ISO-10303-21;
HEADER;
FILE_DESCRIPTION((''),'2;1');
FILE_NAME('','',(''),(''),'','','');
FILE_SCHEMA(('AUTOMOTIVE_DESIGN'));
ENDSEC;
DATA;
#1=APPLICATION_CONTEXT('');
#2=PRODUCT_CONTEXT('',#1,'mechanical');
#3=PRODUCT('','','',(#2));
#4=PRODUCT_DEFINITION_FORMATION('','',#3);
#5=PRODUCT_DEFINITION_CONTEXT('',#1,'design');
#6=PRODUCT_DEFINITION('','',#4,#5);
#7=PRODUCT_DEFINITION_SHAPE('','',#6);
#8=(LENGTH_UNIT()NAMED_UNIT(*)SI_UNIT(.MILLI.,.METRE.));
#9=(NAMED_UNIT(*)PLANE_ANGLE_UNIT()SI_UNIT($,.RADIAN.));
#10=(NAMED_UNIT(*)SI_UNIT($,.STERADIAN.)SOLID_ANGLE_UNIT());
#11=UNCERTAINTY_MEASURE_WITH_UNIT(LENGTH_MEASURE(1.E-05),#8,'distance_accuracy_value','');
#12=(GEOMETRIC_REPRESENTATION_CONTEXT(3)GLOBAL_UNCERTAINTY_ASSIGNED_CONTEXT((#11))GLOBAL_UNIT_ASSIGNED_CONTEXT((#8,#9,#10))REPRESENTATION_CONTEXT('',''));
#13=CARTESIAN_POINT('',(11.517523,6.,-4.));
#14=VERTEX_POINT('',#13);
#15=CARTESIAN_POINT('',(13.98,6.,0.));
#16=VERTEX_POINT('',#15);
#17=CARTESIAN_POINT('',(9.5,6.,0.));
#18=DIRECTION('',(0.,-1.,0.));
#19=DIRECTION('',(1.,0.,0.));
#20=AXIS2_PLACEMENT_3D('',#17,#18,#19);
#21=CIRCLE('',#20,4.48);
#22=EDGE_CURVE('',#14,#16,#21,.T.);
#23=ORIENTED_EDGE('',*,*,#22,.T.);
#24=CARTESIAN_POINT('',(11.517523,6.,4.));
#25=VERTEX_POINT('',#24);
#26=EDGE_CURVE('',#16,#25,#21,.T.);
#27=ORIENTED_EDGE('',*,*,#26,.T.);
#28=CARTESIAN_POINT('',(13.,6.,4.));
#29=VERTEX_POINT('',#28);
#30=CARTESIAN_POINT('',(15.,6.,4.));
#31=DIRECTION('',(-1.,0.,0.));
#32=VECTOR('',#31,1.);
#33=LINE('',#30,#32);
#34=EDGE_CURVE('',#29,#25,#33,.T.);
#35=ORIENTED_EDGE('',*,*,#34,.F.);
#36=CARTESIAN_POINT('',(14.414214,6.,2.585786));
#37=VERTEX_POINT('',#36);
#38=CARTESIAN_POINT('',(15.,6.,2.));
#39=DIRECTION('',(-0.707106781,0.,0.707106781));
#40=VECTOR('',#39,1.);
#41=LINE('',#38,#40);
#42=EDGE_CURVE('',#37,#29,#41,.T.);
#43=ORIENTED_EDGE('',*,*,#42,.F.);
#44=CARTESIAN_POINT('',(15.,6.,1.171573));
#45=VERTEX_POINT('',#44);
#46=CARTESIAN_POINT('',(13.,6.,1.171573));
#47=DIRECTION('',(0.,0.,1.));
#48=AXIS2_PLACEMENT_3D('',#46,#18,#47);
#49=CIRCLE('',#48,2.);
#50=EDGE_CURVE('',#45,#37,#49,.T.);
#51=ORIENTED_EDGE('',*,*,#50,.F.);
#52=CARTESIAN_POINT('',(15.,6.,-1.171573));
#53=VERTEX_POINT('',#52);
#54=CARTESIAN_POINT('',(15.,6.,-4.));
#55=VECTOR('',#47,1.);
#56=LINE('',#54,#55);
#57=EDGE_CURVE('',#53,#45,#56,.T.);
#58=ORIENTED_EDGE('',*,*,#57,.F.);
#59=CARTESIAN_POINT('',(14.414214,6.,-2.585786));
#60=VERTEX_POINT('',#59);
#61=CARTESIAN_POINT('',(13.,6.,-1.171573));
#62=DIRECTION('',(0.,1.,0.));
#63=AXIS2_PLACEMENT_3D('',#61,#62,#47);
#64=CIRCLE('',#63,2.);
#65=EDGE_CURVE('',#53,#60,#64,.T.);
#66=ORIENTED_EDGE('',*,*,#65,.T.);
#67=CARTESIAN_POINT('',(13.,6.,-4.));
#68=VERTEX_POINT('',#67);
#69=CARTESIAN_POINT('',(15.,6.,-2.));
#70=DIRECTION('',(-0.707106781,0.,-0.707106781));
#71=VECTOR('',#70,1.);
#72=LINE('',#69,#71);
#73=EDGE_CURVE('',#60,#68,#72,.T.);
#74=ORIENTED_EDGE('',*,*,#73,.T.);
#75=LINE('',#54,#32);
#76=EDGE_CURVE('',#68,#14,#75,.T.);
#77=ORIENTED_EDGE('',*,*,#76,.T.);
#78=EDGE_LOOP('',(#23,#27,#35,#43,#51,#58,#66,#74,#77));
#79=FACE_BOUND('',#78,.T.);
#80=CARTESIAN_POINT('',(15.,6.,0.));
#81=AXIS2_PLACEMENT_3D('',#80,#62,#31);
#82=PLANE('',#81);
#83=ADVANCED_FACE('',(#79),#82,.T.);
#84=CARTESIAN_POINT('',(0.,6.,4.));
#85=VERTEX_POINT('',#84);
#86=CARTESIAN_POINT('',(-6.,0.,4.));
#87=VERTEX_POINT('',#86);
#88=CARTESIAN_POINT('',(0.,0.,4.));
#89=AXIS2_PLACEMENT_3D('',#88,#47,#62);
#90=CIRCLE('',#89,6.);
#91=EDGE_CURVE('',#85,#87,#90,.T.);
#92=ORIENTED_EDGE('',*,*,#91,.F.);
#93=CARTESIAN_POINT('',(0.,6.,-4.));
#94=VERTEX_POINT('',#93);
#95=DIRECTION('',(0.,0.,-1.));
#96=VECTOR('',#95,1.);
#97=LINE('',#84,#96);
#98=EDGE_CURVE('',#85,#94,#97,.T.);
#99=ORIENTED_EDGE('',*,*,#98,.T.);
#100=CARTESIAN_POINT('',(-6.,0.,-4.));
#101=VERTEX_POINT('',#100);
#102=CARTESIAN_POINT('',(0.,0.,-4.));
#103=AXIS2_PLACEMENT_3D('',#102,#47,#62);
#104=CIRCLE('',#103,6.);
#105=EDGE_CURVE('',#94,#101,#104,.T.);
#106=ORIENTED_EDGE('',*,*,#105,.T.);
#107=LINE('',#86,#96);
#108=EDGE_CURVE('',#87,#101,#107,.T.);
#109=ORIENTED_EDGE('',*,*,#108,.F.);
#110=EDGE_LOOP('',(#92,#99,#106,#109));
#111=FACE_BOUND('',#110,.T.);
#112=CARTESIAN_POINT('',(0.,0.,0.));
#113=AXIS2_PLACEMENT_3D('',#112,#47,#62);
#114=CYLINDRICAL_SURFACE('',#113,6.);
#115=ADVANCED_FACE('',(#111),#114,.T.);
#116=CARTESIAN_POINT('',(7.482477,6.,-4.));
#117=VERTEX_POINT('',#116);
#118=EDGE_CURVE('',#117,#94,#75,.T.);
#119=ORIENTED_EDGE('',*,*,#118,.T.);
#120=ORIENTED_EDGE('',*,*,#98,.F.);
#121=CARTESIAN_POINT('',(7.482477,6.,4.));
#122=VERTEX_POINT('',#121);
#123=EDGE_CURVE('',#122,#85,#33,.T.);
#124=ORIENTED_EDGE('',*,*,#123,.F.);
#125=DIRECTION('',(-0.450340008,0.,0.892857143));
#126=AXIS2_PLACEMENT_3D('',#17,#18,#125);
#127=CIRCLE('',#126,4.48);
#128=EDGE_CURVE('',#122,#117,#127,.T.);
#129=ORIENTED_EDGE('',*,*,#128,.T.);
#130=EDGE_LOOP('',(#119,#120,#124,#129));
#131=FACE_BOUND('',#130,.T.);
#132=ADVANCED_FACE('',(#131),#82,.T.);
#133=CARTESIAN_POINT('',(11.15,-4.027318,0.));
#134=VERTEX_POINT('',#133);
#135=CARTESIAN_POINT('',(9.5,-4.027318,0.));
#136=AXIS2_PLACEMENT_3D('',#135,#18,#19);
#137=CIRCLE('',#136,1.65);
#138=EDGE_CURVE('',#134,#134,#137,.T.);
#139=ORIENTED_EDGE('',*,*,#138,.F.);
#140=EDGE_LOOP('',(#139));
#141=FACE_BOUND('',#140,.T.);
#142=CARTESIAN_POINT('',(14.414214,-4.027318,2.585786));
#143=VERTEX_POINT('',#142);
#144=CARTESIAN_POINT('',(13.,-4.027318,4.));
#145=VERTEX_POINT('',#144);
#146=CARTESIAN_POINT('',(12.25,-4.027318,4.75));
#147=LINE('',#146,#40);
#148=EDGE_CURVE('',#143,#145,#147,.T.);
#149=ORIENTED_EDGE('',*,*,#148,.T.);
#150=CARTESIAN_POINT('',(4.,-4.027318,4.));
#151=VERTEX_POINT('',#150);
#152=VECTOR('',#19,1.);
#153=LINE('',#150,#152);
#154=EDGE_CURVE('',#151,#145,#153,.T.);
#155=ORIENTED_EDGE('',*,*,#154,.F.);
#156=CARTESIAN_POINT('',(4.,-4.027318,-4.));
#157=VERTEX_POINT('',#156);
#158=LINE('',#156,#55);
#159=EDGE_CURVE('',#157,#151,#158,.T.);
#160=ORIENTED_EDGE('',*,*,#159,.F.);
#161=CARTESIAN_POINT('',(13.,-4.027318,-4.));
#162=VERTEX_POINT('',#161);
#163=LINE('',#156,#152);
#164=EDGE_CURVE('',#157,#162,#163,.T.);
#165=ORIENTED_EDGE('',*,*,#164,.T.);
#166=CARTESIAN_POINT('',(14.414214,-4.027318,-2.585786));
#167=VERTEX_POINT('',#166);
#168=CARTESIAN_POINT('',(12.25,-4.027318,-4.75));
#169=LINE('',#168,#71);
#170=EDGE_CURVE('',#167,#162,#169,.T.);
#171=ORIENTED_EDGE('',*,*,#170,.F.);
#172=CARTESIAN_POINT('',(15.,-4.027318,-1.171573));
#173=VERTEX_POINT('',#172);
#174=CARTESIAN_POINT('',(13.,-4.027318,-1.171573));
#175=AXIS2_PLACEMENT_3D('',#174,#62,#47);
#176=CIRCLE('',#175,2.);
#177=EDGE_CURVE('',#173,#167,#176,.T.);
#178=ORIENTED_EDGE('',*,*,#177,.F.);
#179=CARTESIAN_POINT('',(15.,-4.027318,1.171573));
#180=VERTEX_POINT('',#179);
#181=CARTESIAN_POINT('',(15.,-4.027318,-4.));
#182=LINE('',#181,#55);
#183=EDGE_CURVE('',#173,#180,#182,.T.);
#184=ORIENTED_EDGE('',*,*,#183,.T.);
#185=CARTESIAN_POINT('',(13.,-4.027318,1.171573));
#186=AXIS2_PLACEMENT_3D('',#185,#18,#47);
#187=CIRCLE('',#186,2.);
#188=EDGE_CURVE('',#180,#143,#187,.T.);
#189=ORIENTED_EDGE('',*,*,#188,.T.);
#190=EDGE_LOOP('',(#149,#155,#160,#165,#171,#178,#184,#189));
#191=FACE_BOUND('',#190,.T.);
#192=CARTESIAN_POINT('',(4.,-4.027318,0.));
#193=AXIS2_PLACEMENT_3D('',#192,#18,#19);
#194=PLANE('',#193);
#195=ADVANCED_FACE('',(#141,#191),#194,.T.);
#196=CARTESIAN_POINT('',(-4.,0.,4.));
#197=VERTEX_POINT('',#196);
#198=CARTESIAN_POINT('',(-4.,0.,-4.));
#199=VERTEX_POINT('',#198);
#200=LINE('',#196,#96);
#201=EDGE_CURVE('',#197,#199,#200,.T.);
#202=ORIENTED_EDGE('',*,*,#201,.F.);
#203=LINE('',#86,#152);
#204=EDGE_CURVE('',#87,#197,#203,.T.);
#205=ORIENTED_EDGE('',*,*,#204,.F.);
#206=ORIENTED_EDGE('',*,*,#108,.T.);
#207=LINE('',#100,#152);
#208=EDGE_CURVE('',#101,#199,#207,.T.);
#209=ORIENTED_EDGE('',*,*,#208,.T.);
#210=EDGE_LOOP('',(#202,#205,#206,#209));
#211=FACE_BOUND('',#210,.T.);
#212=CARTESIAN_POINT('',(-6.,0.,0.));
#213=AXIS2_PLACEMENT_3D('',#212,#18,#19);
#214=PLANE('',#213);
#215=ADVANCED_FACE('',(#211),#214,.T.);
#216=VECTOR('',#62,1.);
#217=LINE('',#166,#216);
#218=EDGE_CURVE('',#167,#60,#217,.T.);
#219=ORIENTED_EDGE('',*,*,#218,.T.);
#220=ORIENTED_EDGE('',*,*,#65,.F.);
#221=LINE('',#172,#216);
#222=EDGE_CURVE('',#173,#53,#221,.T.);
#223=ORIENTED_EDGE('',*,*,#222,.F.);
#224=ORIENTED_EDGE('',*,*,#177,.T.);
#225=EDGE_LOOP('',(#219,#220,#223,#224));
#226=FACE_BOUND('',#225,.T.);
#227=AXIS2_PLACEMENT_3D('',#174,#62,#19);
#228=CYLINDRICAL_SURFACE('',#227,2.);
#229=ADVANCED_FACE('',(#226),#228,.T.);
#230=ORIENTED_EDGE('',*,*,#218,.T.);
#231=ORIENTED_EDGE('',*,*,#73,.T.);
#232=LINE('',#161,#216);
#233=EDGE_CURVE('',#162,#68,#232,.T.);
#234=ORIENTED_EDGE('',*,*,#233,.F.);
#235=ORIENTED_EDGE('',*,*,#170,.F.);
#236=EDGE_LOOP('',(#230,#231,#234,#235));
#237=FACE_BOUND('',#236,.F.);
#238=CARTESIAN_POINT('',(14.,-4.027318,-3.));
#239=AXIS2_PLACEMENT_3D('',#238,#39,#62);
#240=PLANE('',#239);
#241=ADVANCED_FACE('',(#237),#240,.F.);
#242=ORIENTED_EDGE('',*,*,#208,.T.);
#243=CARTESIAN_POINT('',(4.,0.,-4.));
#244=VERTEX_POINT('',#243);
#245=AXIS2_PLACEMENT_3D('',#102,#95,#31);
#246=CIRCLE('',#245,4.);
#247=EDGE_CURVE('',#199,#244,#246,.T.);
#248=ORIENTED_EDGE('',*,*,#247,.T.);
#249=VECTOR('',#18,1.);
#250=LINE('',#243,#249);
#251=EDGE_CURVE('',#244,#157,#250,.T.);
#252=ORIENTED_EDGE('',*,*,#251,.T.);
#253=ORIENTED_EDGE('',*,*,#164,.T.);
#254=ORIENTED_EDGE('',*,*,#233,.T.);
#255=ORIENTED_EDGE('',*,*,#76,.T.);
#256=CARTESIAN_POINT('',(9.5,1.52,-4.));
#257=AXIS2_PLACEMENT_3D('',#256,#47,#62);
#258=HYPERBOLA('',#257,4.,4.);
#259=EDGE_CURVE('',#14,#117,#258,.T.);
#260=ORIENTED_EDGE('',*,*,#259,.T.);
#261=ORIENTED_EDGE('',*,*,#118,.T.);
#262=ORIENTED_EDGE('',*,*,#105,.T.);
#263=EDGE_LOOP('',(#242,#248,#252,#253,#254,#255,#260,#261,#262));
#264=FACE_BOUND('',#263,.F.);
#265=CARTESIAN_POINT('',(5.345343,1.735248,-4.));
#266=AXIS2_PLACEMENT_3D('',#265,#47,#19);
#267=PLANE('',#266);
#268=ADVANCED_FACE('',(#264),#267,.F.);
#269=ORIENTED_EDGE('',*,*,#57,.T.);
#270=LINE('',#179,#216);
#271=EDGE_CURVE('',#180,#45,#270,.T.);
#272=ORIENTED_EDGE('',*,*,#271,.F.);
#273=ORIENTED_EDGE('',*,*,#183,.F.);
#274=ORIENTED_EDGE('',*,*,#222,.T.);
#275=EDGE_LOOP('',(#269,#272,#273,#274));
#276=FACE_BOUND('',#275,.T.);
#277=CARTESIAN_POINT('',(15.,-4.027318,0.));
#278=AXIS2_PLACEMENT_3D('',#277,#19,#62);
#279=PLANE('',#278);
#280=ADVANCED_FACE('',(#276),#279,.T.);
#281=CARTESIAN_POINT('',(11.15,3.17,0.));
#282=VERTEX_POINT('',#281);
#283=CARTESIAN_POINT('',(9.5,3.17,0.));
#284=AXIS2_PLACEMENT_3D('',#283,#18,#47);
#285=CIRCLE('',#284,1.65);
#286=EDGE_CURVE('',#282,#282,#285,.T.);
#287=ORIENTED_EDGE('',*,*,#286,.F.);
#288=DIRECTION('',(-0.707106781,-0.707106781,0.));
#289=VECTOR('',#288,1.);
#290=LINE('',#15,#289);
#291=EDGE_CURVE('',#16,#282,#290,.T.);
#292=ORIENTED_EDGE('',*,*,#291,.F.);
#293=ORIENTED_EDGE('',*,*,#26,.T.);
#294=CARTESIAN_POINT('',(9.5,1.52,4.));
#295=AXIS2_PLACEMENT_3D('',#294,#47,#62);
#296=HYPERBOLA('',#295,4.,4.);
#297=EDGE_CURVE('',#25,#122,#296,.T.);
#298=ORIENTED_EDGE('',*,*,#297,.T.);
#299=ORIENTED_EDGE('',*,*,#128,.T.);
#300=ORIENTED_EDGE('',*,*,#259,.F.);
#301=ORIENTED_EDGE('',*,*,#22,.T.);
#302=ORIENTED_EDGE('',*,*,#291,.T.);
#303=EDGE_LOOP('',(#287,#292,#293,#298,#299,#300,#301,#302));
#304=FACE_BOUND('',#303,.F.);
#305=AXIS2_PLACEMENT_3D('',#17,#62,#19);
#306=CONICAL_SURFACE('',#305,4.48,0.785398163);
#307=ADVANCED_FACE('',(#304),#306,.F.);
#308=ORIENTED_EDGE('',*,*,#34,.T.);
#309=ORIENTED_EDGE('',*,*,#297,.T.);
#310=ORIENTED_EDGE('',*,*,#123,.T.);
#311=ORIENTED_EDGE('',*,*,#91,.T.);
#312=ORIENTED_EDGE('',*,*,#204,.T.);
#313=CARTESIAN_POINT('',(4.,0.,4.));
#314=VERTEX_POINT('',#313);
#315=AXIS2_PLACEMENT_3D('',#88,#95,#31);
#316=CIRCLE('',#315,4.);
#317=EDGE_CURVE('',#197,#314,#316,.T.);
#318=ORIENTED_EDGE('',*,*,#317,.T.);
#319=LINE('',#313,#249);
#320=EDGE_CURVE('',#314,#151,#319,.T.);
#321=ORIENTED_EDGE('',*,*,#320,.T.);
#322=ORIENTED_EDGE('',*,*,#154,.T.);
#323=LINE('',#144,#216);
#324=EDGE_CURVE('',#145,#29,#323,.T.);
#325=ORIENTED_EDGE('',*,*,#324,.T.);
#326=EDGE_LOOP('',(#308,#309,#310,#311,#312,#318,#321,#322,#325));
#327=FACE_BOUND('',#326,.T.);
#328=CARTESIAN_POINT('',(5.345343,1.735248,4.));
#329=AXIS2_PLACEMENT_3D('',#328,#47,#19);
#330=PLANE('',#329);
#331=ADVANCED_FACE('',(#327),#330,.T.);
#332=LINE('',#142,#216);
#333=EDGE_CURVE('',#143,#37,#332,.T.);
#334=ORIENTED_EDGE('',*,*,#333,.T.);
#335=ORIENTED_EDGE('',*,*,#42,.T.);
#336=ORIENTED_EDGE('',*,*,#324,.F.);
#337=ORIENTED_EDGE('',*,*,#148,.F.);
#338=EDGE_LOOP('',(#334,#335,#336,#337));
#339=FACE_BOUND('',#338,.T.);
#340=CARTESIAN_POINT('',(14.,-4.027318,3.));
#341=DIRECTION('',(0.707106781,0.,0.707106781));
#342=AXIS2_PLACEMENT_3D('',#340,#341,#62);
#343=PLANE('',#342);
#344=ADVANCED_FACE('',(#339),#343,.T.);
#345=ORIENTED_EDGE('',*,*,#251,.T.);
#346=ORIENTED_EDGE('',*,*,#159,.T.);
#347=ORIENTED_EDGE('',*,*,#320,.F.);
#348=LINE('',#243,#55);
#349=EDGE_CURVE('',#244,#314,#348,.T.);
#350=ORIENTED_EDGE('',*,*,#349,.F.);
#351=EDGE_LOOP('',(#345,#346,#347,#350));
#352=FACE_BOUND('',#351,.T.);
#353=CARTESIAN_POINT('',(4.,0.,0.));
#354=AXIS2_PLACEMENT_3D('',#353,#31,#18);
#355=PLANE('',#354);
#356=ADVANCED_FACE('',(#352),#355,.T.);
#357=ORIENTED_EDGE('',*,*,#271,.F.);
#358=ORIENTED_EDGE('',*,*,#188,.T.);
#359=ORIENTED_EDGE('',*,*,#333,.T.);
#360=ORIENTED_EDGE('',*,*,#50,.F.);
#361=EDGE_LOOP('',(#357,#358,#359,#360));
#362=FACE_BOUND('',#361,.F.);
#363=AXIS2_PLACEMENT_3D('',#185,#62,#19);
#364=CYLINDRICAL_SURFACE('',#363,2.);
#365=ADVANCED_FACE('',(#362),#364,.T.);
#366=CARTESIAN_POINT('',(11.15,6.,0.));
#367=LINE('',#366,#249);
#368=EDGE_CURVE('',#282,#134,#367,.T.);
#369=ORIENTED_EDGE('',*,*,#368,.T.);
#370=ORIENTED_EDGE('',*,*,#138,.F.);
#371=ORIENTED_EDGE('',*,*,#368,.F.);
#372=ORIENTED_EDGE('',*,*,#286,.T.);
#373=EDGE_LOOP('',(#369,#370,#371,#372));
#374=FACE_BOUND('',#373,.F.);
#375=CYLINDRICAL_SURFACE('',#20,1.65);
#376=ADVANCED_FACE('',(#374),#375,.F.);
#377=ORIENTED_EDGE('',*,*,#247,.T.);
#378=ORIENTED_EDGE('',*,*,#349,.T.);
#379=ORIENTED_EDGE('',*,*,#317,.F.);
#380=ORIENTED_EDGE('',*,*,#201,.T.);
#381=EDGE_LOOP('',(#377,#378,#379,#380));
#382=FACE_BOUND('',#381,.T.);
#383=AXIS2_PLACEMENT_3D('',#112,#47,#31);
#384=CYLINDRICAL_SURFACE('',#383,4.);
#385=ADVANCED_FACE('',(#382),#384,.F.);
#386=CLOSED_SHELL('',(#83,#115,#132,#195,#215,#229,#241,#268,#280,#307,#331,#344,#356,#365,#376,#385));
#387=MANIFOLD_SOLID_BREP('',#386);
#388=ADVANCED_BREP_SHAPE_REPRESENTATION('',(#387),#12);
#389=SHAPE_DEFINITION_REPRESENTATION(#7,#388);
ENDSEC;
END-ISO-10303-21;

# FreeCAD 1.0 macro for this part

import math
import FreeCAD as App
import Part
import Sketcher
from FreeCAD import Vector
Q = App.Units.Quantity


def edges_at(feature, points):
    """Names of the edges that pass closest to the given points."""
    edges = feature.Shape.Edges
    near = lambda p: min(range(len(edges)), key=lambda i: edges[i].distToShape(Part.Vertex(*p))[0])
    return sorted({f"Edge{near(p) + 1}" for p in points})

doc = App.newDocument("Part")
body = doc.addObject("PartDesign::Body", "Body")

sketch1 = body.newObject("Sketcher::SketchObject", "Sketch")
sketch1.AttachmentSupport = (doc.getObject("XY_Plane"), [""])
sketch1.MapMode = "FlatFace"
sketch1.addGeometry([
    Part.ArcOfCircle(Part.Circle(Vector(0, 0, 0), Vector(0, 0, 1), 4), math.radians(0), math.radians(180)),
    Part.LineSegment(Vector(4, 0, 0), Vector(4, -4, 0)),
    Part.LineSegment(Vector(4, -4, 0), Vector(15, -4, 0)),
    Part.LineSegment(Vector(15, -4, 0), Vector(15, 6, 0)),
    Part.LineSegment(Vector(15, 6, 0), Vector(0, 6, 0)),
    Part.ArcOfCircle(Part.Circle(Vector(0, 0, 0), Vector(0, 0, 1), 6), math.radians(90), math.radians(180)),
    Part.LineSegment(Vector(-6, 0, 0), Vector(-4, 0, 0)),
], False)
sketch1.addConstraint([
    Sketcher.Constraint("Tangent", 0, 1, 1, 1),
    Sketcher.Constraint("Coincident", 1, 2, 2, 1),
    Sketcher.Constraint("Coincident", 2, 2, 3, 1),
    Sketcher.Constraint("Coincident", 3, 2, 4, 1),
    Sketcher.Constraint("Tangent", 4, 2, 5, 1),
    Sketcher.Constraint("Coincident", 5, 2, 6, 1),
    Sketcher.Constraint("Coincident", 6, 2, 0, 2),
    Sketcher.Constraint("Vertical", 1),
    Sketcher.Constraint("Horizontal", 2),
    Sketcher.Constraint("Vertical", 3),
    Sketcher.Constraint("Horizontal", 4),
    Sketcher.Constraint("Horizontal", 6),
    Sketcher.Constraint("Coincident", 0, 3, -1, 1),
    Sketcher.Constraint("Coincident", 5, 3, -1, 1),
    Sketcher.Constraint("PointOnObject", 5, 2, -1),
    Sketcher.Constraint("Radius", 0, Q("4 mm")),
    Sketcher.Constraint("Radius", 5, Q("6 mm")),
    Sketcher.Constraint("DistanceX", 2, 1, 2, 2, Q("11 mm")),
    Sketcher.Constraint("DistanceY", 1, 2, 1, 1, Q("4.027318 mm")),
])
pad1 = body.newObject("PartDesign::Pad", "Pad")
pad1.Profile = sketch1
pad1.Length = 8
pad1.Midplane = True

sketch2 = body.newObject("Sketcher::SketchObject", "Sketch001")
sketch2.AttachmentSupport = (doc.getObject("XZ_Plane"), [""])
sketch2.MapMode = "FlatFace"
sketch2.AttachmentOffset = App.Placement(Vector(0, 0, -6), App.Rotation())
sketch2.addGeometry(Part.Circle(Vector(9.5, 0, 0), Vector(0, 0, 1), 1.6), False)
sketch2.addConstraint([
    Sketcher.Constraint("PointOnObject", 0, 3, -1),
    Sketcher.Constraint("Diameter", 0, Q("3.3 mm")),
    Sketcher.Constraint("DistanceX", -1, 1, 0, 3, Q("9.5 mm")),
])
doc.recompute()
hole = body.newObject("PartDesign::Hole", "Hole")
hole.Profile = sketch2
hole.ThreadType = "None"
hole.Diameter = 3.3
hole.DepthType = "ThroughAll"
hole.HoleCutType = "Countersink"
hole.HoleCutDiameter = 8.96
hole.HoleCutCountersinkAngle = 90
hole.Reversed = True
doc.recompute()

chamfer = body.newObject("PartDesign::Chamfer", "Chamfer")
chamfer.Base = (hole, edges_at(hole, [(15, 0.986, -4), (15, 0.986, 4)]))
chamfer.Size = 2
doc.recompute()

fillet = body.newObject("PartDesign::Fillet", "Fillet")
fillet.Base = (chamfer, edges_at(chamfer, [(15, 0.986, -2), (15, 0.986, 2)]))
fillet.Radius = 2

doc.recompute()
